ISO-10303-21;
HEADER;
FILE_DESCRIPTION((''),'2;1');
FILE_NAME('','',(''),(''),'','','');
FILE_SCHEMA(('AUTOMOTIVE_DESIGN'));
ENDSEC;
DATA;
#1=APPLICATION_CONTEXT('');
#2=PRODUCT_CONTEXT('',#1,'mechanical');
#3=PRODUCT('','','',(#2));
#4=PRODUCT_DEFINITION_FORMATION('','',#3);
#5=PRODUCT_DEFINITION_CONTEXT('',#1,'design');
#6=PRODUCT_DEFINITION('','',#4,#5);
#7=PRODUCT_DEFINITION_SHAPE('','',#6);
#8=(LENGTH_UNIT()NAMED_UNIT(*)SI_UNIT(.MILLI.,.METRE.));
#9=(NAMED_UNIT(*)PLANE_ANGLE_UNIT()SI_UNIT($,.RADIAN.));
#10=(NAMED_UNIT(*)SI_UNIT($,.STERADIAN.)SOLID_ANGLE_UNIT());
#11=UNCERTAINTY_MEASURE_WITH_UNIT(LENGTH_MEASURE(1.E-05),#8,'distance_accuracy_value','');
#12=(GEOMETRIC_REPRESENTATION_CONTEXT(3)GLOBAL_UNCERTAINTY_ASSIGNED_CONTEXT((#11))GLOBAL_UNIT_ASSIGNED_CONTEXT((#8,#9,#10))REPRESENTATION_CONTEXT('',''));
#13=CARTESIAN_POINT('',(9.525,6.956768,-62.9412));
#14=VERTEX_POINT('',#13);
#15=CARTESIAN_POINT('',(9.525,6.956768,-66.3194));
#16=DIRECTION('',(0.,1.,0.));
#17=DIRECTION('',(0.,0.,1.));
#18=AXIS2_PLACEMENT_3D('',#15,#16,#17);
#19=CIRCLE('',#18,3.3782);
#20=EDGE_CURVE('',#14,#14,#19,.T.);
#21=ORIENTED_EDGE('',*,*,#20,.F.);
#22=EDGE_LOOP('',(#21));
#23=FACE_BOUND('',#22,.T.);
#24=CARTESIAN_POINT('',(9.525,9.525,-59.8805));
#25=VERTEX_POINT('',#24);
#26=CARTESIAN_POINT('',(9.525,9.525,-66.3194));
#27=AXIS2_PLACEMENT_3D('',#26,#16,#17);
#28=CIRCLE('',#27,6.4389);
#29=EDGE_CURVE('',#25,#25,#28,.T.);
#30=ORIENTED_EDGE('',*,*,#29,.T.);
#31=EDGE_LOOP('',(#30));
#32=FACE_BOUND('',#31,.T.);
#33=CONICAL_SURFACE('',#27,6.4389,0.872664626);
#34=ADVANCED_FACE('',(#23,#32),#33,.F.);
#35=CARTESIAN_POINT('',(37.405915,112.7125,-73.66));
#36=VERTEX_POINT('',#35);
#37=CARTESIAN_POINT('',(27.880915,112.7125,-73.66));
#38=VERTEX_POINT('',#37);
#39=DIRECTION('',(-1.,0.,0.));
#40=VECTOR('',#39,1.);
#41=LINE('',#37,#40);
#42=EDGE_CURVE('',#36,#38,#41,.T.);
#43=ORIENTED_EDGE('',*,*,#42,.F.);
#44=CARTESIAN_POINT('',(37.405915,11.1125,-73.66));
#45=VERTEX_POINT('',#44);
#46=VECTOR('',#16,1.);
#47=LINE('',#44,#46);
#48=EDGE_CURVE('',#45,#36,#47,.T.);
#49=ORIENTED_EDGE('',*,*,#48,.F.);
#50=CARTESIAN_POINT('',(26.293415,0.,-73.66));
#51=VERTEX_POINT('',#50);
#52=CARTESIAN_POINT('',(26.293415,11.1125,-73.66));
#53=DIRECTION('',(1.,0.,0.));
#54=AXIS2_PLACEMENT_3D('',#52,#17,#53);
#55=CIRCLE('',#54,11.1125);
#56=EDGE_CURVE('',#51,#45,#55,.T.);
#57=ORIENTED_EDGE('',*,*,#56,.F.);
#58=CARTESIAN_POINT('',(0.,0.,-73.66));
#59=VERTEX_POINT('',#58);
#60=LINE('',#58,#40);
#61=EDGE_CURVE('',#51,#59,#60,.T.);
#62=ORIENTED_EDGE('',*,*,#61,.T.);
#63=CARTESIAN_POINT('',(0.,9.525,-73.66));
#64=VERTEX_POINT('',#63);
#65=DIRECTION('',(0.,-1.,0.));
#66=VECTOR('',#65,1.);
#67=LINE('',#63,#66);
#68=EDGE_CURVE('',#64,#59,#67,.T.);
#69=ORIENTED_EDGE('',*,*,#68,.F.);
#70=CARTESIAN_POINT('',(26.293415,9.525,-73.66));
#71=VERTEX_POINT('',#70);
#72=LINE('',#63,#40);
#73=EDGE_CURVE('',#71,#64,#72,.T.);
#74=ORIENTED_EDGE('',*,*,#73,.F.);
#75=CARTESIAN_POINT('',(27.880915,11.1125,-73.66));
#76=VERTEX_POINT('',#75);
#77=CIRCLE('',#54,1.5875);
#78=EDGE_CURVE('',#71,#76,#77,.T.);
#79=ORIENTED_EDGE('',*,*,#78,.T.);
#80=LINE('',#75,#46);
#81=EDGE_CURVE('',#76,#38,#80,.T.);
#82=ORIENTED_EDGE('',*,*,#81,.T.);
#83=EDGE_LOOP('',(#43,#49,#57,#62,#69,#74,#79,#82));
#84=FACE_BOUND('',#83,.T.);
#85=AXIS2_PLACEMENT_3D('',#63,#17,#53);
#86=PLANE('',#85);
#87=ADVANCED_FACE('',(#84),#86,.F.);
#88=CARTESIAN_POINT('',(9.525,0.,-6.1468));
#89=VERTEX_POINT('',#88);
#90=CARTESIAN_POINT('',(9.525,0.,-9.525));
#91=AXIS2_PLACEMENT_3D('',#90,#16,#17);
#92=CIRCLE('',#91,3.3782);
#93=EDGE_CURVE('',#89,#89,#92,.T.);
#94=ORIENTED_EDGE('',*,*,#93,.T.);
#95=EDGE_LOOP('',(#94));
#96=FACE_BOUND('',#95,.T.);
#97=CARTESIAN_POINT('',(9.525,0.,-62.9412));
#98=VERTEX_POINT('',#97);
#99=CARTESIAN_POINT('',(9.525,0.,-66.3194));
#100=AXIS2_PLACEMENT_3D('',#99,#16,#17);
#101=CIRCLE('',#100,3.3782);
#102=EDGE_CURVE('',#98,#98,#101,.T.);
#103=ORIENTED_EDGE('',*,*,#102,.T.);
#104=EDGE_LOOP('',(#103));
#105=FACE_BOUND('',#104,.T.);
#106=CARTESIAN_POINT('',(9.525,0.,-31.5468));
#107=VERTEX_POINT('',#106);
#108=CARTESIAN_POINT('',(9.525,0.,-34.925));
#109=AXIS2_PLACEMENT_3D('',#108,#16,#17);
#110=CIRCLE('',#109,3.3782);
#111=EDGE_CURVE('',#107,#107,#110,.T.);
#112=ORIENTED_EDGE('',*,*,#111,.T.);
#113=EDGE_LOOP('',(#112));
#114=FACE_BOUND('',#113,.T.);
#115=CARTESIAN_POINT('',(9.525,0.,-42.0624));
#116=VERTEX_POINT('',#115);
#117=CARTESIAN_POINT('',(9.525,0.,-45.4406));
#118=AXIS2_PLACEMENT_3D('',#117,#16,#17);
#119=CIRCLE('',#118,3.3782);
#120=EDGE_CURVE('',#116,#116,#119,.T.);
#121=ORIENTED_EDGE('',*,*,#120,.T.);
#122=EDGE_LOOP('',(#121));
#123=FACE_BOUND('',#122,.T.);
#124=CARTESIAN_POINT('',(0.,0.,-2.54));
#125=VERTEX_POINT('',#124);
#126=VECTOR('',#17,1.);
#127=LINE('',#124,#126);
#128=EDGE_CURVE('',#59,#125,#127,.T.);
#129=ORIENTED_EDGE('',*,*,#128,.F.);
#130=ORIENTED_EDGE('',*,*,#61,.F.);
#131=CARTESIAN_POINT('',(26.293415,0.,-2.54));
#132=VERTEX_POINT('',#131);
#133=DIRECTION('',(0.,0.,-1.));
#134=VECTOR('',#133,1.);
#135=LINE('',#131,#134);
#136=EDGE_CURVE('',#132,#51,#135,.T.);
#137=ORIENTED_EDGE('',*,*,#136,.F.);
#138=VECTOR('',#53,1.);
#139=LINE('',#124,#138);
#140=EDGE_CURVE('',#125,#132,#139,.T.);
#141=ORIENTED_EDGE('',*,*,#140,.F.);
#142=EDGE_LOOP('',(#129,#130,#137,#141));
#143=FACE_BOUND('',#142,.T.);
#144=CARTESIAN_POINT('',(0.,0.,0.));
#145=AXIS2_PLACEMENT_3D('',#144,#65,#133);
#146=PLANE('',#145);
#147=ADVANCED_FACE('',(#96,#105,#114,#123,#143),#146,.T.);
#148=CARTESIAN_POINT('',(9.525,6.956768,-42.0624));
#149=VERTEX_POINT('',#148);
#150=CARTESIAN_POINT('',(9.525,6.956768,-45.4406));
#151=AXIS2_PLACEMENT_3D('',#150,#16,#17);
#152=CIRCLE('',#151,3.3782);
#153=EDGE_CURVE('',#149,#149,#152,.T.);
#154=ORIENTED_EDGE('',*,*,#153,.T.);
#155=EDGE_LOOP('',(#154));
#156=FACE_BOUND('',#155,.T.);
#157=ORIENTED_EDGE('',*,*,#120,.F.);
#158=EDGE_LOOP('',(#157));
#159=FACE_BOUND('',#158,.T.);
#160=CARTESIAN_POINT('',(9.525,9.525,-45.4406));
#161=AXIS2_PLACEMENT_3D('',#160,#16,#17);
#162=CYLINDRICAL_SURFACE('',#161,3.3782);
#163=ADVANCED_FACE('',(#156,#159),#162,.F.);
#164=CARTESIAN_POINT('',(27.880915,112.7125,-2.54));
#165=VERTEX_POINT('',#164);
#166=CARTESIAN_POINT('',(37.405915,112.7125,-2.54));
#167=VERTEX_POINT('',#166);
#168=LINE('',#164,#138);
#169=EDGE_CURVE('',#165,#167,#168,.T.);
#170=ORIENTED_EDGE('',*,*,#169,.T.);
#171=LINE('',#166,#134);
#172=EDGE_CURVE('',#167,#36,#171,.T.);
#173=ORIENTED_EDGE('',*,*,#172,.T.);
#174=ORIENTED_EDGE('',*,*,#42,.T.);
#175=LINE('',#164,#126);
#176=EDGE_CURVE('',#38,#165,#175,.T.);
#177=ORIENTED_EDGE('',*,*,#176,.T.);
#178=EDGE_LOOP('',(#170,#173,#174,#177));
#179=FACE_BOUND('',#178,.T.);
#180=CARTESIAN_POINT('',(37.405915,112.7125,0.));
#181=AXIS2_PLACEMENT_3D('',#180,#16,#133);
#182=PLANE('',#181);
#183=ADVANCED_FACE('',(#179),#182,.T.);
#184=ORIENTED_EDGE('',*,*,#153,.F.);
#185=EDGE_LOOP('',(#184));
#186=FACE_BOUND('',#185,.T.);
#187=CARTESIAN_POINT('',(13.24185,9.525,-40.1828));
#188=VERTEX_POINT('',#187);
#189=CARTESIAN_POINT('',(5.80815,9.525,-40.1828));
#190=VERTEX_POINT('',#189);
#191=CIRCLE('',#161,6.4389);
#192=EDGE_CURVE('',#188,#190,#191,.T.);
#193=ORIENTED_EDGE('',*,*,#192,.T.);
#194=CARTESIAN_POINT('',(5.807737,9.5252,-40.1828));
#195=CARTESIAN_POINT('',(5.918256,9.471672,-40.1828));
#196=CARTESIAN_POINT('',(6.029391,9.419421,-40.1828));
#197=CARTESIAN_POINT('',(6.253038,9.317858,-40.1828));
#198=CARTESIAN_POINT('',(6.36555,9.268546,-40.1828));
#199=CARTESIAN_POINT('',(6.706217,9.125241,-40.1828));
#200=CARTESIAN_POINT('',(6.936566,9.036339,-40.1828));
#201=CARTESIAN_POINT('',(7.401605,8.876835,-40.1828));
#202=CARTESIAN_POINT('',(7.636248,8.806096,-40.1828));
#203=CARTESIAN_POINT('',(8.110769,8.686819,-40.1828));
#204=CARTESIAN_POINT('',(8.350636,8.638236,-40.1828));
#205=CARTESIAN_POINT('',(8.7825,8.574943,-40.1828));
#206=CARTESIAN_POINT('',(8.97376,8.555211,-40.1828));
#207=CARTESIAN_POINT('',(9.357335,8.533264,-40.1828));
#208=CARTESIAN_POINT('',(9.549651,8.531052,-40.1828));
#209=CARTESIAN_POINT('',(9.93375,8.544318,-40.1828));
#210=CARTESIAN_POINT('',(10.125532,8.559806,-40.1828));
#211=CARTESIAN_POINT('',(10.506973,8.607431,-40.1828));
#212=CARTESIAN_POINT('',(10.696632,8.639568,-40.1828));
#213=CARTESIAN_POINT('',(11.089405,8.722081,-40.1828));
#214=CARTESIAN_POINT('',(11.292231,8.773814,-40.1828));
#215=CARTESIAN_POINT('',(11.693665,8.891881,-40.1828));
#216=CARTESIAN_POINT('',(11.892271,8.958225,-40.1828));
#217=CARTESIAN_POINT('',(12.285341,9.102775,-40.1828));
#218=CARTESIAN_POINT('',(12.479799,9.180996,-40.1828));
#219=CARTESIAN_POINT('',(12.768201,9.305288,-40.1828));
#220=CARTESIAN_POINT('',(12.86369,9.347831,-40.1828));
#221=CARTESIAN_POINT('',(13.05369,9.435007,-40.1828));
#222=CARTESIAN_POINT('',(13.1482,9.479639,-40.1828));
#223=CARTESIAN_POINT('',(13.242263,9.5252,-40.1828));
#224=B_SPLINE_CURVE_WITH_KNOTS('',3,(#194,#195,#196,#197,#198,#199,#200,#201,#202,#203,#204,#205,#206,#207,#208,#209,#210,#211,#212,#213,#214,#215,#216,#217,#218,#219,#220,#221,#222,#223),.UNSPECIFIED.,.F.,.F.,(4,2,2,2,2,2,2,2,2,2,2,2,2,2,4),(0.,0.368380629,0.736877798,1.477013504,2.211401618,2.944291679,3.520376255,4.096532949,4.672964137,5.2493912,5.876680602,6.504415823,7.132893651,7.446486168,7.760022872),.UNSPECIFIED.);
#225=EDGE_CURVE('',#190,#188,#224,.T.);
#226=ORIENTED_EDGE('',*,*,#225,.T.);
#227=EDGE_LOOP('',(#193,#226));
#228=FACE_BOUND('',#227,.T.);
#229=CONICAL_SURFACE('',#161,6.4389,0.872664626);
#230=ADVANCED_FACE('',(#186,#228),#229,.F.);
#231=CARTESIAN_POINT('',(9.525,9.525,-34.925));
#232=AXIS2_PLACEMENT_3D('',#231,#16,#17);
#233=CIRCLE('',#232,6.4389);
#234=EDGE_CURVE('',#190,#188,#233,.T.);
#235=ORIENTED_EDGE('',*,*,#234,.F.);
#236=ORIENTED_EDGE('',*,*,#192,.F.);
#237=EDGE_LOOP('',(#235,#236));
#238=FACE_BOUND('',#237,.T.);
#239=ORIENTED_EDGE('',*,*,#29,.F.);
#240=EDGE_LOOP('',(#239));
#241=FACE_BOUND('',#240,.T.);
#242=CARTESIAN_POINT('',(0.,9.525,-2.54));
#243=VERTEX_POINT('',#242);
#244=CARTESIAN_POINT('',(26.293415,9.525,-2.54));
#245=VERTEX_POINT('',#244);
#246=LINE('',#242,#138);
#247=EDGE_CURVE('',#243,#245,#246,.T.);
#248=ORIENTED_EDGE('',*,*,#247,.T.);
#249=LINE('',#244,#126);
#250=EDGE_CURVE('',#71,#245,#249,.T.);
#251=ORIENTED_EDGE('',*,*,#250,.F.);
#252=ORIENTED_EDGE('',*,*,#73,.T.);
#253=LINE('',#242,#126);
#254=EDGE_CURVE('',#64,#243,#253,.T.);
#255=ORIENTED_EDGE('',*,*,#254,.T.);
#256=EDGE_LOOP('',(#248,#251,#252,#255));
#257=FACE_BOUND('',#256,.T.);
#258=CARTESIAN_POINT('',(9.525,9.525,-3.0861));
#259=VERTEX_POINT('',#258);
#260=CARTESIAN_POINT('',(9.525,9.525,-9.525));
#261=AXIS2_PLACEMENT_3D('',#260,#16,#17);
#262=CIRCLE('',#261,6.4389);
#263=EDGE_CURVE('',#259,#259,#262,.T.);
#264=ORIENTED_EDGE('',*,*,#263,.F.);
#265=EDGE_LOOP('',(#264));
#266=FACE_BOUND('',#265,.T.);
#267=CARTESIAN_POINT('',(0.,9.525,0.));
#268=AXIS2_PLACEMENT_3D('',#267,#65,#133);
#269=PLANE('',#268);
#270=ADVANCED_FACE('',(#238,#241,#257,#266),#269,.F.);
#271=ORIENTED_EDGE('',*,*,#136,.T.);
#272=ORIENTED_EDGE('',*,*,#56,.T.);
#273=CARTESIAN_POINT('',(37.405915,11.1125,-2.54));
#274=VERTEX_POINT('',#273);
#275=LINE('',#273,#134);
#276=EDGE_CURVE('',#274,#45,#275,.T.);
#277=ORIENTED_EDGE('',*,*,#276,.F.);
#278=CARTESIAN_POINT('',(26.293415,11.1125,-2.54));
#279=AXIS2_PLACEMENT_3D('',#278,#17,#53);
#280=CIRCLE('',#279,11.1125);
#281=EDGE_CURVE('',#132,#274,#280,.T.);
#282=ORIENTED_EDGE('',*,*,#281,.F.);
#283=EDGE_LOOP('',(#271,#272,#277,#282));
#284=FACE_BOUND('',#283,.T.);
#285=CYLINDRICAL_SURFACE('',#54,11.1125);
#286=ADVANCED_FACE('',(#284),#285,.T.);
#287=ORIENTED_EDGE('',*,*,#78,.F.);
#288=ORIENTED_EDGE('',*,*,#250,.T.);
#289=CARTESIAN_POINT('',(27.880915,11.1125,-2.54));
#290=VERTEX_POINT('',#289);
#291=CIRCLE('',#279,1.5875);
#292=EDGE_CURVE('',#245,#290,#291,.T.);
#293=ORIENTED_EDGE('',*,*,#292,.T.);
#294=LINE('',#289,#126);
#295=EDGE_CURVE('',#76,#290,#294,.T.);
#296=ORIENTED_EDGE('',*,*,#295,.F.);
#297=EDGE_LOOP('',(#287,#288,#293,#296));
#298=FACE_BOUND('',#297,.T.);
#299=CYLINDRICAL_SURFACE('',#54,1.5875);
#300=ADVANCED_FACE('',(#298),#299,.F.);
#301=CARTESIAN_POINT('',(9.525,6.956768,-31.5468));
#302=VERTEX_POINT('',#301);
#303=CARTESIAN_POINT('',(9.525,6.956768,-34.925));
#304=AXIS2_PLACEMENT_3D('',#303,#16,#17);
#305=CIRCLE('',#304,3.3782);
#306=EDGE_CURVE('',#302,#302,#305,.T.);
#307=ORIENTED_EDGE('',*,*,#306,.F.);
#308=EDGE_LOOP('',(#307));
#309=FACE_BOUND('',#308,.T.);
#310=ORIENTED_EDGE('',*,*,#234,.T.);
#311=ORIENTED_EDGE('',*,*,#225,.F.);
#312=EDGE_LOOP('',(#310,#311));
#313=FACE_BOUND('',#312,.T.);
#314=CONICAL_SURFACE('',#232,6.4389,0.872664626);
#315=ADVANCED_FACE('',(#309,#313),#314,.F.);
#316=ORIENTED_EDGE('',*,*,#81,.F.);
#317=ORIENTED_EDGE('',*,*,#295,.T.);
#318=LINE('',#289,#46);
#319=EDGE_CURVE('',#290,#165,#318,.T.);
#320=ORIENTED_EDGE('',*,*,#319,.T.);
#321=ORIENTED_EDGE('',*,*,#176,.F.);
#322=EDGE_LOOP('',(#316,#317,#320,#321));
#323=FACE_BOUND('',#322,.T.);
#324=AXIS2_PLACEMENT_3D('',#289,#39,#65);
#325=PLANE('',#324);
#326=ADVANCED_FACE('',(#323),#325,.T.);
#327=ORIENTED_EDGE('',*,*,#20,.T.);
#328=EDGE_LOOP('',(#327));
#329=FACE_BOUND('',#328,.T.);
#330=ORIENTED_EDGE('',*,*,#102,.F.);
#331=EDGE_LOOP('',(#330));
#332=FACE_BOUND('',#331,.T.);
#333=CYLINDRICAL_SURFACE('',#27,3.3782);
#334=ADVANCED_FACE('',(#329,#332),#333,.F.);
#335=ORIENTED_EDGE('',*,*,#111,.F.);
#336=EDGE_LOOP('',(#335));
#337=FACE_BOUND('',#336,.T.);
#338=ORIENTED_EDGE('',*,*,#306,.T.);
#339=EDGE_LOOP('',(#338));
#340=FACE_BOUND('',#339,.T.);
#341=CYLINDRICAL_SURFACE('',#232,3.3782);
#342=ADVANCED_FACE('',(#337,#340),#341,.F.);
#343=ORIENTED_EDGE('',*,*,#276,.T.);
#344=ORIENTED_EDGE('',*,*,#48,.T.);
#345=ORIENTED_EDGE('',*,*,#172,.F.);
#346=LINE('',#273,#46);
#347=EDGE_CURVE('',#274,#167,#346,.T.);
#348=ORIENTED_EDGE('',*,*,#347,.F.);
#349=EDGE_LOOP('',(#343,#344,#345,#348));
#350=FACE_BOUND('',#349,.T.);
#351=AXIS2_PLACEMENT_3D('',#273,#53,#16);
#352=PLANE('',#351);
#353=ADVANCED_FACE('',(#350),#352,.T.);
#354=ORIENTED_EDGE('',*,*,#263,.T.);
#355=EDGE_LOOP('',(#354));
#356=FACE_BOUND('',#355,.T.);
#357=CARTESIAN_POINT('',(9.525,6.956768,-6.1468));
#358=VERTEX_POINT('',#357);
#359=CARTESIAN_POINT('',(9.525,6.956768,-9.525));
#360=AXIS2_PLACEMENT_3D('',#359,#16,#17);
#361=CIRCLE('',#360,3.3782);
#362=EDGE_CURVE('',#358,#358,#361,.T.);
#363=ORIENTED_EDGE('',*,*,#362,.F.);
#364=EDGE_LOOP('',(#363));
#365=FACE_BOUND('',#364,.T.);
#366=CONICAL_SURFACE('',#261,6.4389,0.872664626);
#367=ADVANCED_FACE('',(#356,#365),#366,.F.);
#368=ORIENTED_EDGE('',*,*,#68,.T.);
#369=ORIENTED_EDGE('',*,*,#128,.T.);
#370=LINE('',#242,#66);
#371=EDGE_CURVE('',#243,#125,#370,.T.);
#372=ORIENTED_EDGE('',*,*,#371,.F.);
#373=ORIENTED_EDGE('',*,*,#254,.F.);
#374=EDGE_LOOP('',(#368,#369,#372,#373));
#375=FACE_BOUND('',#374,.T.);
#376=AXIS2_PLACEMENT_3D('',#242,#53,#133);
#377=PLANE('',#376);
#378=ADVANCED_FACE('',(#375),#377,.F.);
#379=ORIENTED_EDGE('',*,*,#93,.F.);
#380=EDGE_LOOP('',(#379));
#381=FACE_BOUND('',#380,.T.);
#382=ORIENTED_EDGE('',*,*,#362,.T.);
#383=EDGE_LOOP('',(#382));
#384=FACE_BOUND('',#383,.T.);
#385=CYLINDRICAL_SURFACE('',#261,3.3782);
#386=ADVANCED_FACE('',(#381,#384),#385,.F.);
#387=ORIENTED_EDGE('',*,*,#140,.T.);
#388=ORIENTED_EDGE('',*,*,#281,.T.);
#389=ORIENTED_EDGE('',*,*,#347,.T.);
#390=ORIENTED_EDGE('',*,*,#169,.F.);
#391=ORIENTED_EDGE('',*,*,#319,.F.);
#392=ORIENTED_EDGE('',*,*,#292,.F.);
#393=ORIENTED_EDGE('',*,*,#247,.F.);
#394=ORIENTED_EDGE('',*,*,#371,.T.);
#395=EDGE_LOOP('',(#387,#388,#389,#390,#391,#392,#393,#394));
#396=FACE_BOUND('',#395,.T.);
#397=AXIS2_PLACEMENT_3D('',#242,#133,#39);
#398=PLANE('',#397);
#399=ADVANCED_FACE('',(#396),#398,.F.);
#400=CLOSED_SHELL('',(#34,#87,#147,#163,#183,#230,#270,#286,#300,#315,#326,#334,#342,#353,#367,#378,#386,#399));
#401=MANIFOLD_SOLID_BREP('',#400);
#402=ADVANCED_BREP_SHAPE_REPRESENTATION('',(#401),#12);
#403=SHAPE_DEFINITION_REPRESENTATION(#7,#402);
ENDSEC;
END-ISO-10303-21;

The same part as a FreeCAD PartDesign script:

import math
import FreeCAD as App
import Part
import Sketcher
Q = App.Units.Quantity


def add_polygon(sketch, points):
    """Adds a closed chain of lines whose ends are joined by coincident constraints."""
    first, n = sketch.GeometryCount, len(points)
    for a, b in zip(points, points[1:] + points[:1]):
        sketch.addGeometry(Part.LineSegment(App.Vector(*a, 0), App.Vector(*b, 0)), False)
    for i in range(n):
        sketch.addConstraint(Sketcher.Constraint("Coincident", first + i, 2, first + (i + 1) % n, 1))

doc = App.newDocument("Part")
body = doc.addObject("PartDesign::Body", "Body")

# Sketch on XZ plane
sketch1 = doc.addObject("Sketcher::SketchObject", "Sketch")
body.addObject(sketch1)
sketch1.AttachmentSupport = (doc.XZ_Plane, [""])
sketch1.MapMode = "FlatFace"
add_polygon(sketch1, [(0, -74), (0, -3), (25, -3), (25, -74)])  # lines 0-3
sketch1.addConstraint([
    Sketcher.Constraint("Vertical", 0),
    Sketcher.Constraint("Horizontal", 1),
    Sketcher.Constraint("Vertical", 2),
    Sketcher.Constraint("Horizontal", 3),
    Sketcher.Constraint("PointOnObject", 0, 2, -2),
    Sketcher.Constraint("DistanceX", 1, 1, 1, 2, Q("1 in")),
    Sketcher.Constraint("DistanceY", 0, 1, 0, 2, Q("2.8 in")),
    Sketcher.Constraint("DistanceY", 0, 2, -1, 1, Q("0.1 in")),
])
pad1 = doc.addObject("PartDesign::Pad", "Pad")
body.addObject(pad1)
pad1.Profile = sketch1
pad1.Length = Q("0.375 in")
pad1.Reversed = True

# Sketch on XZ plane
sketch2 = doc.addObject("Sketcher::SketchObject", "Sketch001")
body.addObject(sketch2)
sketch2.AttachmentSupport = (doc.XZ_Plane, [""])
sketch2.MapMode = "FlatFace"
sketch2.AttachmentOffset = App.Placement(App.Vector(0, 0, -0.375 * 25.4), App.Rotation())
sketch2.addGeometry([
    Part.Circle(App.Vector(9.5, -9.5, 0), App.Vector(0, 0, 1), 3.4),
    Part.Circle(App.Vector(9.5, -34.9, 0), App.Vector(0, 0, 1), 3.4),
    Part.Circle(App.Vector(9.5, -45.4, 0), App.Vector(0, 0, 1), 3.4),
    Part.Circle(App.Vector(9.5, -66.3, 0), App.Vector(0, 0, 1), 3.4),
], False)
sketch2.addConstraint([
    Sketcher.Constraint("Equal", 0, 1),
    Sketcher.Constraint("Equal", 1, 2),
    Sketcher.Constraint("Equal", 2, 3),
    Sketcher.Constraint("Vertical", 0, 3, 1, 3),
    Sketcher.Constraint("Vertical", 1, 3, 2, 3),
    Sketcher.Constraint("Vertical", 2, 3, 3, 3),
    Sketcher.Constraint("Diameter", 0, Q("0.266 in")),
    Sketcher.Constraint("DistanceY", 1, 3, 0, 3, Q("1 in")),
    Sketcher.Constraint("DistanceX", -1, 1, 0, 3, Q("0.375 in")),
    Sketcher.Constraint("DistanceY", 0, 3, -1, 1, Q("0.375 in")),
    Sketcher.Constraint("DistanceY", 2, 3, -1, 1, Q("1.789 in")),
    Sketcher.Constraint("DistanceY", 3, 3, -1, 1, Q("2.611 in")),
])
doc.recompute()
hole = doc.addObject("PartDesign::Hole", "Hole")
body.addObject(hole)
hole.Profile = sketch2
hole.ThreadType = "None"
hole.Diameter = Q("0.266 in")
hole.DepthType = "ThroughAll"
hole.HoleCutType = "Countersink"
hole.HoleCutDiameter = Q("0.507 in")
hole.HoleCutCountersinkAngle = 100
hole.Reversed = True

# Sketch on YZ plane
sketch3 = doc.addObject("Sketcher::SketchObject", "Sketch002")
body.addObject(sketch3)
sketch3.AttachmentSupport = (doc.YZ_Plane, [""])
sketch3.MapMode = "FlatFace"
sketch3.AttachmentOffset = App.Placement(App.Vector(0, 0, 1 * 25.4), App.Rotation())
add_polygon(sketch3, [(10, -3), (0, -3), (0, -74), (10, -74)])  # lines 0-3
sketch3.addConstraint([
    Sketcher.Constraint("Horizontal", 0),
    Sketcher.Constraint("Vertical", 1),
    Sketcher.Constraint("Horizontal", 2),
    Sketcher.Constraint("Vertical", 3),
    Sketcher.Constraint("PointOnObject", 0, 2, -2),
    Sketcher.Constraint("DistanceY", 1, 2, 1, 1, Q("2.8 in")),
    Sketcher.Constraint("DistanceY", 0, 2, -1, 1, Q("0.1 in")),
    Sketcher.Constraint("DistanceX", 0, 2, 0, 1, Q("0.375 in")),
])

# Sketch on XY plane
sketch4 = doc.addObject("Sketcher::SketchObject", "Sketch003")
body.addObject(sketch4)
sketch4.AttachmentSupport = (doc.XY_Plane, [""])
sketch4.MapMode = "FlatFace"
sketch4.AttachmentOffset = App.Placement(App.Vector(0, 0, -2.9 * 25.4), App.Rotation())
sketch4.addGeometry([
    Part.LineSegment(App.Vector(32.6, 112.7, 0), App.Vector(32.6, 11.1, 0)),
    Part.ArcOfCircle(Part.Circle(App.Vector(26.3, 11.1, 0), App.Vector(0, 0, 1), 6.3), math.radians(-90), math.radians(0)),
    Part.LineSegment(App.Vector(26.3, 4.8, 0), App.Vector(25.4, 4.8, 0)),
], False)
sketch4.addConstraint([
    Sketcher.Constraint("Tangent", 0, 2, 1, 2),
    Sketcher.Constraint("Tangent", 1, 1, 2, 1),
    Sketcher.Constraint("Vertical", 0),
    Sketcher.Constraint("Horizontal", 2),
    Sketcher.Constraint("DistanceY", 0, 2, 0, 1, Q("4 in")),
    Sketcher.Constraint("Radius", 1, Q("0.25 in")),
    Sketcher.Constraint("DistanceX", -1, 1, 2, 2, Q("1 in")),
    Sketcher.Constraint("DistanceY", -1, 1, 1, 3, Q("0.4375 in")),
    Sketcher.Constraint("DistanceX", 2, 2, 2, 1, 0.893415),
])
doc.recompute()

additivepipe = doc.addObject("PartDesign::AdditivePipe", "AdditivePipe")
body.addObject(additivepipe)
additivepipe.Profile = sketch3
additivepipe.Spine = (sketch4, ["Edge1", "Edge2", "Edge3"])

doc.recompute()
